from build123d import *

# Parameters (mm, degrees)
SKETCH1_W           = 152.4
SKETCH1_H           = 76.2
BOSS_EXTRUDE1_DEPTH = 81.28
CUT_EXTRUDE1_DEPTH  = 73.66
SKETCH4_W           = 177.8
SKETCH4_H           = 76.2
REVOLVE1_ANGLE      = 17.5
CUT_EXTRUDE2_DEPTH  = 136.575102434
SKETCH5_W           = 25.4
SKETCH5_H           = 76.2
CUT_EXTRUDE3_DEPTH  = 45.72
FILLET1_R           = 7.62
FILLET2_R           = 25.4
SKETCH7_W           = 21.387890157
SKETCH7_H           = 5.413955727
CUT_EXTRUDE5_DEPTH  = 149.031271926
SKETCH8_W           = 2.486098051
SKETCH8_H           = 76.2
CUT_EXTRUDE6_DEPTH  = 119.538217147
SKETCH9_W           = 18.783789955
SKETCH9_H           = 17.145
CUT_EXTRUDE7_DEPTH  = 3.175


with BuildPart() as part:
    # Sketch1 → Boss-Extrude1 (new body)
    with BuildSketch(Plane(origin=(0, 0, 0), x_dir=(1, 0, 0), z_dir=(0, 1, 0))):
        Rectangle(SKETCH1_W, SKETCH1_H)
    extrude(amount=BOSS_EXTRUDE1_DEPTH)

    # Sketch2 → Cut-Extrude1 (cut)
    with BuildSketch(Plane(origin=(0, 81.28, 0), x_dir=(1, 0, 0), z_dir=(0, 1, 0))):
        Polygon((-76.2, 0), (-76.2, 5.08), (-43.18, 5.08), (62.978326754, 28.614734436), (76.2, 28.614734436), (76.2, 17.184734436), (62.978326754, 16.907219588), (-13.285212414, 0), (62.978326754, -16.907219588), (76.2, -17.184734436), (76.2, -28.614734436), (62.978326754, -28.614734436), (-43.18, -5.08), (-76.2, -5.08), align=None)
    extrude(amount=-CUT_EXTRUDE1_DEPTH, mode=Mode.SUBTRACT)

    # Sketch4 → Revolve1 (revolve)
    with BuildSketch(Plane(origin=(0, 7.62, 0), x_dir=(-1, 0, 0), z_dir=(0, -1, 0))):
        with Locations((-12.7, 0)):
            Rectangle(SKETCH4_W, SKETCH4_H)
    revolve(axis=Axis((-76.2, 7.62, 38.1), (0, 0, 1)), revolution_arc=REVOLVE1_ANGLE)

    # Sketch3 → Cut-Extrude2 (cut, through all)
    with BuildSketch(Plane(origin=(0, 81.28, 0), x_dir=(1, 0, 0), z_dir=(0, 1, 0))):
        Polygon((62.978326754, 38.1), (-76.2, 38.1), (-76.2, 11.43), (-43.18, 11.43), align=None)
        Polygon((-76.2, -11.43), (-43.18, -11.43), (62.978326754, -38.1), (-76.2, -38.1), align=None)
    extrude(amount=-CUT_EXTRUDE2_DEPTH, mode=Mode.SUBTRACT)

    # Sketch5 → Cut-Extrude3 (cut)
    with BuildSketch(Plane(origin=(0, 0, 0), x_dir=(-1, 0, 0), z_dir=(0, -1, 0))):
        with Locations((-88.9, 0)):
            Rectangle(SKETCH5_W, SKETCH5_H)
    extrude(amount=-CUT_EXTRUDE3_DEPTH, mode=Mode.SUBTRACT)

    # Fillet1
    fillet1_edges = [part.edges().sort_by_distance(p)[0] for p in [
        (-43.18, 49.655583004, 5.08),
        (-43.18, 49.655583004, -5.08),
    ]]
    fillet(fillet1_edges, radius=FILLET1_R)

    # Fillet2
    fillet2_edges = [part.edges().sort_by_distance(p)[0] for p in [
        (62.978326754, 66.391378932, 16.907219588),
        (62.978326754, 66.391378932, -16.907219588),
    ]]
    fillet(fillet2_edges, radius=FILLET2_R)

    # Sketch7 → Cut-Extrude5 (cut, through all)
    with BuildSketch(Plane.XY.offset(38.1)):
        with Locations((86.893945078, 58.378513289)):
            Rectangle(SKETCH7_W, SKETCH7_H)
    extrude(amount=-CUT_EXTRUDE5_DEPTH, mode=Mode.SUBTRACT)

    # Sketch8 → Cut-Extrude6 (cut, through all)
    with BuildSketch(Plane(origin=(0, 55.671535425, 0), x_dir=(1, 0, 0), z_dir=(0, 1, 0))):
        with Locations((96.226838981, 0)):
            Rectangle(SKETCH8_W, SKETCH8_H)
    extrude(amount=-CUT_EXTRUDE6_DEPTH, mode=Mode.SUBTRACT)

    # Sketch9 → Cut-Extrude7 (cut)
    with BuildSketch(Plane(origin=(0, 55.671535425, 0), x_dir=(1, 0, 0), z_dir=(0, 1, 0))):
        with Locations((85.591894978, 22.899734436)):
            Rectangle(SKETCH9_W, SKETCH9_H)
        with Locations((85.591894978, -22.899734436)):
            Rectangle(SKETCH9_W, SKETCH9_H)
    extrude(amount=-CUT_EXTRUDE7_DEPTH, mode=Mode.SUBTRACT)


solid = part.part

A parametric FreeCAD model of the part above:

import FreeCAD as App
import Part
import Sketcher
from FreeCAD import Vector
Q = App.Units.Quantity


def edges_at(feature, points):
    """Names of the edges that pass closest to the given points."""
    edges = feature.Shape.Edges
    near = lambda p: min(range(len(edges)), key=lambda i: edges[i].distToShape(Part.Vertex(*p))[0])
    return sorted({f"Edge{near(p) + 1}" for p in points})

doc = App.newDocument("Part")
body = doc.addObject("PartDesign::Body", "Body")

# Sketch on XZ plane
sketch1 = doc.addObject("Sketcher::SketchObject", "Sketch")
body.addObject(sketch1)
sketch1.AttachmentSupport = (doc.XZ_Plane, [""])
sketch1.MapMode = "FlatFace"
sketch1.addGeometry(Part.LineSegment(Vector(-76.2, -38.1, 0), Vector(-76.2, 38.1, 0)), False)
sketch1.addGeometry(Part.LineSegment(Vector(-76.2, 38.1, 0), Vector(76.2, 38.1, 0)), False)
sketch1.addGeometry(Part.LineSegment(Vector(76.2, 38.1, 0), Vector(76.2, -38.1, 0)), False)
sketch1.addGeometry(Part.LineSegment(Vector(76.2, -38.1, 0), Vector(-76.2, -38.1, 0)), False)
sketch1.addConstraint(Sketcher.Constraint("Coincident", 0, 2, 1, 1))
sketch1.addConstraint(Sketcher.Constraint("Coincident", 1, 2, 2, 1))
sketch1.addConstraint(Sketcher.Constraint("Coincident", 2, 2, 3, 1))
sketch1.addConstraint(Sketcher.Constraint("Coincident", 3, 2, 0, 1))
sketch1.addConstraint(Sketcher.Constraint("Vertical", 0))
sketch1.addConstraint(Sketcher.Constraint("Horizontal", 1))
sketch1.addConstraint(Sketcher.Constraint("Vertical", 2))
sketch1.addConstraint(Sketcher.Constraint("Horizontal", 3))
sketch1.addConstraint(Sketcher.Constraint("Symmetric", 0, 2, 2, 2, -1, 1))
sketch1.addConstraint(Sketcher.Constraint("DistanceX", 1, 1, 1, 2, Q("6 in")))
sketch1.addConstraint(Sketcher.Constraint("DistanceY", 0, 1, 0, 2, Q("3 in")))
pad1 = doc.addObject("PartDesign::Pad", "Pad")
body.addObject(pad1)
pad1.Profile = sketch1
pad1.Length = Q("3.2 in")
pad1.Reversed = True

# Sketch on XZ plane
sketch2 = doc.addObject("Sketcher::SketchObject", "Sketch001")
body.addObject(sketch2)
sketch2.AttachmentSupport = (doc.XZ_Plane, [""])
sketch2.MapMode = "FlatFace"
sketch2.AttachmentOffset = App.Placement(Vector(0, 0, -3.2 * 25.4), App.Rotation())
sketch2.addGeometry(Part.LineSegment(Vector(-76.2, -5.08, 0), Vector(-76.2, 5.08, 0)), False)
sketch2.addGeometry(Part.LineSegment(Vector(-76.2, 5.08, 0), Vector(-43.18, 5.08, 0)), False)
sketch2.addGeometry(Part.LineSegment(Vector(-43.18, 5.08, 0), Vector(62.978327, 28.614734, 0)), False)
sketch2.addGeometry(Part.LineSegment(Vector(62.978327, 28.614734, 0), Vector(76.2, 28.614734, 0)), False)
sketch2.addGeometry(Part.LineSegment(Vector(76.2, 28.614734, 0), Vector(76.2, 17.184734, 0)), False)
sketch2.addGeometry(Part.LineSegment(Vector(76.2, 17.184734, 0), Vector(62.978327, 16.90722, 0)), False)
sketch2.addGeometry(Part.LineSegment(Vector(62.978327, 16.90722, 0), Vector(-13.285212, 0, 0)), False)
sketch2.addGeometry(Part.LineSegment(Vector(-13.285212, 0, 0), Vector(62.978327, -16.90722, 0)), False)
sketch2.addGeometry(Part.LineSegment(Vector(62.978327, -16.90722, 0), Vector(76.2, -17.184734, 0)), False)
sketch2.addGeometry(Part.LineSegment(Vector(76.2, -17.184734, 0), Vector(76.2, -28.614734, 0)), False)
sketch2.addGeometry(Part.LineSegment(Vector(76.2, -28.614734, 0), Vector(62.978327, -28.614734, 0)), False)
sketch2.addGeometry(Part.LineSegment(Vector(62.978327, -28.614734, 0), Vector(-43.18, -5.08, 0)), False)
sketch2.addGeometry(Part.LineSegment(Vector(-43.18, -5.08, 0), Vector(-76.2, -5.08, 0)), False)
sketch2.addConstraint(Sketcher.Constraint("Coincident", 0, 2, 1, 1))
sketch2.addConstraint(Sketcher.Constraint("Coincident", 1, 2, 2, 1))
sketch2.addConstraint(Sketcher.Constraint("Coincident", 2, 2, 3, 1))
sketch2.addConstraint(Sketcher.Constraint("Coincident", 3, 2, 4, 1))
sketch2.addConstraint(Sketcher.Constraint("Coincident", 4, 2, 5, 1))
sketch2.addConstraint(Sketcher.Constraint("Coincident", 5, 2, 6, 1))
sketch2.addConstraint(Sketcher.Constraint("Coincident", 6, 2, 7, 1))
sketch2.addConstraint(Sketcher.Constraint("Coincident", 7, 2, 8, 1))
sketch2.addConstraint(Sketcher.Constraint("Coincident", 8, 2, 9, 1))
sketch2.addConstraint(Sketcher.Constraint("Coincident", 9, 2, 10, 1))
sketch2.addConstraint(Sketcher.Constraint("Coincident", 10, 2, 11, 1))
sketch2.addConstraint(Sketcher.Constraint("Coincident", 11, 2, 12, 1))
sketch2.addConstraint(Sketcher.Constraint("Coincident", 12, 2, 0, 1))
sketch2.addConstraint(Sketcher.Constraint("Vertical", 0))
sketch2.addConstraint(Sketcher.Constraint("Horizontal", 1))
sketch2.addConstraint(Sketcher.Constraint("Horizontal", 3))
sketch2.addConstraint(Sketcher.Constraint("Vertical", 4))
sketch2.addConstraint(Sketcher.Constraint("Vertical", 9))
sketch2.addConstraint(Sketcher.Constraint("Horizontal", 10))
sketch2.addConstraint(Sketcher.Constraint("Horizontal", 12))
sketch2.addConstraint(Sketcher.Constraint("Symmetric", 5, 2, 7, 2, -1))
sketch2.addConstraint(Sketcher.Constraint("Symmetric", 4, 2, 8, 2, -1))
sketch2.addConstraint(Sketcher.Constraint("Symmetric", 2, 2, 10, 2, -1))
sketch2.addConstraint(Sketcher.Constraint("Symmetric", 1, 2, 11, 2, -1))
sketch2.addConstraint(Sketcher.Constraint("PointOnObject", 6, 2, -1))
sketch2.addConstraint(Sketcher.Constraint("Parallel", 2, 6))
sketch2.addConstraint(Sketcher.Constraint("Vertical", 2, 2, 5, 2))
sketch2.addConstraint(Sketcher.Constraint("DistanceX", 1, 1, 1, 2, Q("1.3 in")))
sketch2.addConstraint(Sketcher.Constraint("DistanceY", 0, 1, 0, 2, Q("0.4 in")))
sketch2.addConstraint(Sketcher.Constraint("DistanceX", 0, 2, -1, 1, Q("3 in")))
sketch2.addConstraint(Sketcher.Constraint("DistanceX", -1, 1, 3, 2, Q("3 in")))
sketch2.addConstraint(Sketcher.Constraint("DistanceY", 4, 2, 4, 1, Q("0.45 in")))
sketch2.addConstraint(Sketcher.Constraint("Angle", 2, Q("12.5 deg")))
sketch2.addConstraint(Sketcher.Constraint("Distance", 2, 108.735799))
sketch2.addConstraint(Sketcher.Constraint("Distance", 6, 78.115181))
pocket1 = doc.addObject("PartDesign::Pocket", "Pocket")
body.addObject(pocket1)
pocket1.Profile = sketch2
pocket1.Length = Q("2.9 in")
pocket1.Reversed = True

# Sketch on XZ plane
sketch3 = doc.addObject("Sketcher::SketchObject", "Sketch002")
body.addObject(sketch3)
sketch3.AttachmentSupport = (doc.XZ_Plane, [""])
sketch3.MapMode = "FlatFace"
sketch3.AttachmentOffset = App.Placement(Vector(0, 0, -0.3 * 25.4), App.Rotation())
sketch3.addGeometry(Part.LineSegment(Vector(101.6, -38.1, 0), Vector(101.6, 38.1, 0)), False)
sketch3.addGeometry(Part.LineSegment(Vector(101.6, 38.1, 0), Vector(-76.2, 38.1, 0)), False)
sketch3.addGeometry(Part.LineSegment(Vector(-76.2, 38.1, 0), Vector(-76.2, -38.1, 0)), False)
sketch3.addGeometry(Part.LineSegment(Vector(-76.2, -38.1, 0), Vector(101.6, -38.1, 0)), False)
sketch3.addGeometry(Part.LineSegment(Vector(-76.2, -38.1, 0), Vector(-76.2, 38.1, 0)), True)  # axis
sketch3.addConstraint(Sketcher.Constraint("Coincident", 0, 2, 1, 1))
sketch3.addConstraint(Sketcher.Constraint("Coincident", 1, 2, 2, 1))
sketch3.addConstraint(Sketcher.Constraint("Coincident", 2, 2, 3, 1))
sketch3.addConstraint(Sketcher.Constraint("Coincident", 3, 2, 0, 1))
sketch3.addConstraint(Sketcher.Constraint("Vertical", 0))
sketch3.addConstraint(Sketcher.Constraint("Horizontal", 1))
sketch3.addConstraint(Sketcher.Constraint("Vertical", 2))
sketch3.addConstraint(Sketcher.Constraint("Horizontal", 3))
sketch3.addConstraint(Sketcher.Constraint("Vertical", 4))
sketch3.addConstraint(Sketcher.Constraint("Coincident", 4, 1, 2, 2))
sketch3.addConstraint(Sketcher.Constraint("Horizontal", 0, 2, 4, 2))
sketch3.addConstraint(Sketcher.Constraint("DistanceX", 1, 2, 1, 1, Q("7 in")))
sketch3.addConstraint(Sketcher.Constraint("DistanceY", 0, 1, 0, 2, Q("3 in")))
sketch3.addConstraint(Sketcher.Constraint("DistanceX", -1, 1, 0, 2, Q("4 in")))
sketch3.addConstraint(Sketcher.Constraint("DistanceY", -1, 1, 0, 2, Q("1.5 in")))
revolution = doc.addObject("PartDesign::Revolution", "Revolution")
body.addObject(revolution)
revolution.Profile = sketch3
revolution.ReferenceAxis = (sketch3, ["Axis0"])
revolution.Angle = 17.5

# Sketch on XZ plane
sketch4 = doc.addObject("Sketcher::SketchObject", "Sketch003")
body.addObject(sketch4)
sketch4.AttachmentSupport = (doc.XZ_Plane, [""])
sketch4.MapMode = "FlatFace"
sketch4.AttachmentOffset = App.Placement(Vector(0, 0, -3.2 * 25.4), App.Rotation())
sketch4.addGeometry(Part.LineSegment(Vector(62.978327, -38.1, 0), Vector(-76.2, -38.1, 0)), False)
sketch4.addGeometry(Part.LineSegment(Vector(-76.2, -38.1, 0), Vector(-76.2, -11.43, 0)), False)
sketch4.addGeometry(Part.LineSegment(Vector(-76.2, -11.43, 0), Vector(-43.18, -11.43, 0)), False)
sketch4.addGeometry(Part.LineSegment(Vector(-43.18, -11.43, 0), Vector(62.978327, -38.1, 0)), False)
sketch4.addGeometry(Part.LineSegment(Vector(-43.18, 11.43, 0), Vector(-76.2, 11.43, 0)), False)
sketch4.addGeometry(Part.LineSegment(Vector(-76.2, 11.43, 0), Vector(-76.2, 38.1, 0)), False)
sketch4.addGeometry(Part.LineSegment(Vector(-76.2, 38.1, 0), Vector(62.978327, 38.1, 0)), False)
sketch4.addGeometry(Part.LineSegment(Vector(62.978327, 38.1, 0), Vector(-43.18, 11.43, 0)), False)
sketch4.addConstraint(Sketcher.Constraint("Coincident", 0, 2, 1, 1))
sketch4.addConstraint(Sketcher.Constraint("Coincident", 1, 2, 2, 1))
sketch4.addConstraint(Sketcher.Constraint("Coincident", 2, 2, 3, 1))
sketch4.addConstraint(Sketcher.Constraint("Coincident", 3, 2, 0, 1))
sketch4.addConstraint(Sketcher.Constraint("Coincident", 4, 2, 5, 1))
sketch4.addConstraint(Sketcher.Constraint("Coincident", 5, 2, 6, 1))
sketch4.addConstraint(Sketcher.Constraint("Coincident", 6, 2, 7, 1))
sketch4.addConstraint(Sketcher.Constraint("Coincident", 7, 2, 4, 1))
sketch4.addConstraint(Sketcher.Constraint("Horizontal", 0))
sketch4.addConstraint(Sketcher.Constraint("Vertical", 1))
sketch4.addConstraint(Sketcher.Constraint("Horizontal", 2))
sketch4.addConstraint(Sketcher.Constraint("Horizontal", 4))
sketch4.addConstraint(Sketcher.Constraint("Vertical", 5))
sketch4.addConstraint(Sketcher.Constraint("Horizontal", 6))
sketch4.addConstraint(Sketcher.Constraint("Symmetric", 1, 2, 4, 2, -1))
sketch4.addConstraint(Sketcher.Constraint("Symmetric", 3, 2, 6, 2, -1))
sketch4.addConstraint(Sketcher.Constraint("Vertical", 2, 2, 7, 2))
sketch4.addConstraint(Sketcher.Constraint("DistanceX", 2, 1, 2, 2, Q("1.3 in")))
sketch4.addConstraint(Sketcher.Constraint("DistanceX", 0, 2, -1, 1, Q("3 in")))
sketch4.addConstraint(Sketcher.Constraint("DistanceY", 0, 2, 5, 2, Q("3 in")))
sketch4.addConstraint(Sketcher.Constraint("DistanceY", 1, 1, 1, 2, Q("1.05 in")))
sketch4.addConstraint(Sketcher.Constraint("DistanceX", 0, 2, 0, 1, 139.178327))
pocket2 = doc.addObject("PartDesign::Pocket", "Pocket001")
body.addObject(pocket2)
pocket2.Profile = sketch4
pocket2.Type = "ThroughAll"
pocket2.Reversed = True

# Sketch on XZ plane
sketch5 = doc.addObject("Sketcher::SketchObject", "Sketch004")
body.addObject(sketch5)
sketch5.AttachmentSupport = (doc.XZ_Plane, [""])
sketch5.MapMode = "FlatFace"
sketch5.addGeometry(Part.LineSegment(Vector(101.6, -38.1, 0), Vector(101.6, 38.1, 0)), False)
sketch5.addGeometry(Part.LineSegment(Vector(101.6, 38.1, 0), Vector(76.2, 38.1, 0)), False)
sketch5.addGeometry(Part.LineSegment(Vector(76.2, 38.1, 0), Vector(76.2, -38.1, 0)), False)
sketch5.addGeometry(Part.LineSegment(Vector(76.2, -38.1, 0), Vector(101.6, -38.1, 0)), False)
sketch5.addConstraint(Sketcher.Constraint("Coincident", 0, 2, 1, 1))
sketch5.addConstraint(Sketcher.Constraint("Coincident", 1, 2, 2, 1))
sketch5.addConstraint(Sketcher.Constraint("Coincident", 2, 2, 3, 1))
sketch5.addConstraint(Sketcher.Constraint("Coincident", 3, 2, 0, 1))
sketch5.addConstraint(Sketcher.Constraint("Vertical", 0))
sketch5.addConstraint(Sketcher.Constraint("Horizontal", 1))
sketch5.addConstraint(Sketcher.Constraint("Vertical", 2))
sketch5.addConstraint(Sketcher.Constraint("Horizontal", 3))
sketch5.addConstraint(Sketcher.Constraint("DistanceX", 1, 2, 1, 1, Q("1 in")))
sketch5.addConstraint(Sketcher.Constraint("DistanceY", 0, 1, 0, 2, Q("3 in")))
sketch5.addConstraint(Sketcher.Constraint("DistanceX", -1, 1, 0, 2, Q("4 in")))
sketch5.addConstraint(Sketcher.Constraint("DistanceY", -1, 1, 0, 2, Q("1.5 in")))
pocket3 = doc.addObject("PartDesign::Pocket", "Pocket002")
body.addObject(pocket3)
pocket3.Profile = sketch5
pocket3.Length = Q("1.8 in")
doc.recompute()

fillet = doc.addObject("PartDesign::Fillet", "Fillet")
body.addObject(fillet)
fillet.Base = (pocket3, edges_at(pocket3, [(-43.18, 49.656, 5.08), (-43.18, 49.656, -5.08)]))
fillet.Radius = Q("0.3 in")
doc.recompute()

fillet2 = doc.addObject("PartDesign::Fillet", "Fillet001")
body.addObject(fillet2)
fillet2.Base = (fillet, edges_at(fillet, [(62.978, 66.391, 16.907), (62.978, 66.391, -16.907)]))
fillet2.Radius = Q("1 in")

# Sketch on XY plane
sketch6 = doc.addObject("Sketcher::SketchObject", "Sketch005")
body.addObject(sketch6)
sketch6.AttachmentSupport = (doc.XY_Plane, [""])
sketch6.MapMode = "FlatFace"
sketch6.AttachmentOffset = App.Placement(Vector(0, 0, 1.5 * 25.4), App.Rotation())
sketch6.addGeometry(Part.LineSegment(Vector(76.2, 61.085491, 0), Vector(76.2, 55.671535, 0)), False)
sketch6.addGeometry(Part.LineSegment(Vector(76.2, 55.671535, 0), Vector(97.58789, 55.671535, 0)), False)
sketch6.addGeometry(Part.LineSegment(Vector(97.58789, 55.671535, 0), Vector(97.58789, 61.085491, 0)), False)
sketch6.addGeometry(Part.LineSegment(Vector(97.58789, 61.085491, 0), Vector(76.2, 61.085491, 0)), False)
sketch6.addConstraint(Sketcher.Constraint("Coincident", 0, 2, 1, 1))
sketch6.addConstraint(Sketcher.Constraint("Coincident", 1, 2, 2, 1))
sketch6.addConstraint(Sketcher.Constraint("Coincident", 2, 2, 3, 1))
sketch6.addConstraint(Sketcher.Constraint("Coincident", 3, 2, 0, 1))
sketch6.addConstraint(Sketcher.Constraint("Vertical", 0))
sketch6.addConstraint(Sketcher.Constraint("Horizontal", 1))
sketch6.addConstraint(Sketcher.Constraint("Vertical", 2))
sketch6.addConstraint(Sketcher.Constraint("Horizontal", 3))
sketch6.addConstraint(Sketcher.Constraint("DistanceX", -1, 1, 0, 2, Q("3 in")))
sketch6.addConstraint(Sketcher.Constraint("DistanceX", 1, 1, 1, 2, 21.38789))
sketch6.addConstraint(Sketcher.Constraint("DistanceY", 0, 2, 0, 1, 5.413956))
sketch6.addConstraint(Sketcher.Constraint("DistanceY", -1, 1, 2, 2, 61.085491))
pocket4 = doc.addObject("PartDesign::Pocket", "Pocket003")
body.addObject(pocket4)
pocket4.Profile = sketch6
pocket4.Type = "ThroughAll"

# Sketch on XZ plane
sketch7 = doc.addObject("Sketcher::SketchObject", "Sketch006")
body.addObject(sketch7)
sketch7.AttachmentSupport = (doc.XZ_Plane, [""])
sketch7.MapMode = "FlatFace"
sketch7.AttachmentOffset = App.Placement(Vector(0, 0, -55.671535), App.Rotation())
sketch7.addGeometry(Part.LineSegment(Vector(94.98379, -38.1, 0), Vector(94.98379, 38.1, 0)), False)
sketch7.addGeometry(Part.LineSegment(Vector(94.98379, 38.1, 0), Vector(97.469888, 38.1, 0)), False)
sketch7.addGeometry(Part.LineSegment(Vector(97.469888, 38.1, 0), Vector(97.469888, -38.1, 0)), False)
sketch7.addGeometry(Part.LineSegment(Vector(97.469888, -38.1, 0), Vector(94.98379, -38.1, 0)), False)
sketch7.addConstraint(Sketcher.Constraint("Coincident", 0, 2, 1, 1))
sketch7.addConstraint(Sketcher.Constraint("Coincident", 1, 2, 2, 1))
sketch7.addConstraint(Sketcher.Constraint("Coincident", 2, 2, 3, 1))
sketch7.addConstraint(Sketcher.Constraint("Coincident", 3, 2, 0, 1))
sketch7.addConstraint(Sketcher.Constraint("Vertical", 0))
sketch7.addConstraint(Sketcher.Constraint("Horizontal", 1))
sketch7.addConstraint(Sketcher.Constraint("Vertical", 2))
sketch7.addConstraint(Sketcher.Constraint("Horizontal", 3))
sketch7.addConstraint(Sketcher.Constraint("DistanceY", 0, 1, 0, 2, Q("3 in")))
sketch7.addConstraint(Sketcher.Constraint("DistanceY", -1, 1, 0, 2, Q("1.5 in")))
sketch7.addConstraint(Sketcher.Constraint("DistanceX", 1, 1, 1, 2, 2.486098))
sketch7.addConstraint(Sketcher.Constraint("DistanceX", -1, 1, 0, 2, 94.98379))
pocket5 = doc.addObject("PartDesign::Pocket", "Pocket004")
body.addObject(pocket5)
pocket5.Profile = sketch7
pocket5.Type = "ThroughAll"
pocket5.Reversed = True

# Sketch on XZ plane
sketch8 = doc.addObject("Sketcher::SketchObject", "Sketch007")
body.addObject(sketch8)
sketch8.AttachmentSupport = (doc.XZ_Plane, [""])
sketch8.MapMode = "FlatFace"
sketch8.AttachmentOffset = App.Placement(Vector(0, 0, -55.671535), App.Rotation())
sketch8.addGeometry(Part.LineSegment(Vector(76.2, -31.472234, 0), Vector(76.2, -14.327234, 0)), False)
sketch8.addGeometry(Part.LineSegment(Vector(76.2, -14.327234, 0), Vector(94.98379, -14.327234, 0)), False)
sketch8.addGeometry(Part.LineSegment(Vector(94.98379, -14.327234, 0), Vector(94.98379, -31.472234, 0)), False)
sketch8.addGeometry(Part.LineSegment(Vector(94.98379, -31.472234, 0), Vector(76.2, -31.472234, 0)), False)
sketch8.addGeometry(Part.LineSegment(Vector(76.2, 14.327234, 0), Vector(76.2, 31.472234, 0)), False)
sketch8.addGeometry(Part.LineSegment(Vector(76.2, 31.472234, 0), Vector(94.98379, 31.472234, 0)), False)
sketch8.addGeometry(Part.LineSegment(Vector(94.98379, 31.472234, 0), Vector(94.98379, 14.327234, 0)), False)
sketch8.addGeometry(Part.LineSegment(Vector(94.98379, 14.327234, 0), Vector(76.2, 14.327234, 0)), False)
sketch8.addConstraint(Sketcher.Constraint("Coincident", 0, 2, 1, 1))
sketch8.addConstraint(Sketcher.Constraint("Coincident", 1, 2, 2, 1))
sketch8.addConstraint(Sketcher.Constraint("Coincident", 2, 2, 3, 1))
sketch8.addConstraint(Sketcher.Constraint("Coincident", 3, 2, 0, 1))
sketch8.addConstraint(Sketcher.Constraint("Coincident", 4, 2, 5, 1))
sketch8.addConstraint(Sketcher.Constraint("Coincident", 5, 2, 6, 1))
sketch8.addConstraint(Sketcher.Constraint("Coincident", 6, 2, 7, 1))
sketch8.addConstraint(Sketcher.Constraint("Coincident", 7, 2, 4, 1))
sketch8.addConstraint(Sketcher.Constraint("Vertical", 0))
sketch8.addConstraint(Sketcher.Constraint("Horizontal", 1))
sketch8.addConstraint(Sketcher.Constraint("Vertical", 2))
sketch8.addConstraint(Sketcher.Constraint("Horizontal", 3))
sketch8.addConstraint(Sketcher.Constraint("Vertical", 4))
sketch8.addConstraint(Sketcher.Constraint("Horizontal", 5))
sketch8.addConstraint(Sketcher.Constraint("Vertical", 6))
sketch8.addConstraint(Sketcher.Constraint("Horizontal", 7))
sketch8.addConstraint(Sketcher.Constraint("Symmetric", 3, 2, 4, 2, -1))
sketch8.addConstraint(Sketcher.Constraint("Symmetric", 1, 2, 6, 2, -1))
sketch8.addConstraint(Sketcher.Constraint("DistanceX", -1, 1, 0, 2, Q("3 in")))
sketch8.addConstraint(Sketcher.Constraint("DistanceY", 0, 1, 0, 2, Q("0.675 in")))
sketch8.addConstraint(Sketcher.Constraint("DistanceX", 1, 1, 1, 2, 18.78379))
sketch8.addConstraint(Sketcher.Constraint("DistanceY", 0, 2, 4, 2, 45.799469))
pocket6 = doc.addObject("PartDesign::Pocket", "Pocket005")
body.addObject(pocket6)
pocket6.Profile = sketch8
pocket6.Length = Q("0.125 in")
pocket6.Reversed = True

doc.recompute()
